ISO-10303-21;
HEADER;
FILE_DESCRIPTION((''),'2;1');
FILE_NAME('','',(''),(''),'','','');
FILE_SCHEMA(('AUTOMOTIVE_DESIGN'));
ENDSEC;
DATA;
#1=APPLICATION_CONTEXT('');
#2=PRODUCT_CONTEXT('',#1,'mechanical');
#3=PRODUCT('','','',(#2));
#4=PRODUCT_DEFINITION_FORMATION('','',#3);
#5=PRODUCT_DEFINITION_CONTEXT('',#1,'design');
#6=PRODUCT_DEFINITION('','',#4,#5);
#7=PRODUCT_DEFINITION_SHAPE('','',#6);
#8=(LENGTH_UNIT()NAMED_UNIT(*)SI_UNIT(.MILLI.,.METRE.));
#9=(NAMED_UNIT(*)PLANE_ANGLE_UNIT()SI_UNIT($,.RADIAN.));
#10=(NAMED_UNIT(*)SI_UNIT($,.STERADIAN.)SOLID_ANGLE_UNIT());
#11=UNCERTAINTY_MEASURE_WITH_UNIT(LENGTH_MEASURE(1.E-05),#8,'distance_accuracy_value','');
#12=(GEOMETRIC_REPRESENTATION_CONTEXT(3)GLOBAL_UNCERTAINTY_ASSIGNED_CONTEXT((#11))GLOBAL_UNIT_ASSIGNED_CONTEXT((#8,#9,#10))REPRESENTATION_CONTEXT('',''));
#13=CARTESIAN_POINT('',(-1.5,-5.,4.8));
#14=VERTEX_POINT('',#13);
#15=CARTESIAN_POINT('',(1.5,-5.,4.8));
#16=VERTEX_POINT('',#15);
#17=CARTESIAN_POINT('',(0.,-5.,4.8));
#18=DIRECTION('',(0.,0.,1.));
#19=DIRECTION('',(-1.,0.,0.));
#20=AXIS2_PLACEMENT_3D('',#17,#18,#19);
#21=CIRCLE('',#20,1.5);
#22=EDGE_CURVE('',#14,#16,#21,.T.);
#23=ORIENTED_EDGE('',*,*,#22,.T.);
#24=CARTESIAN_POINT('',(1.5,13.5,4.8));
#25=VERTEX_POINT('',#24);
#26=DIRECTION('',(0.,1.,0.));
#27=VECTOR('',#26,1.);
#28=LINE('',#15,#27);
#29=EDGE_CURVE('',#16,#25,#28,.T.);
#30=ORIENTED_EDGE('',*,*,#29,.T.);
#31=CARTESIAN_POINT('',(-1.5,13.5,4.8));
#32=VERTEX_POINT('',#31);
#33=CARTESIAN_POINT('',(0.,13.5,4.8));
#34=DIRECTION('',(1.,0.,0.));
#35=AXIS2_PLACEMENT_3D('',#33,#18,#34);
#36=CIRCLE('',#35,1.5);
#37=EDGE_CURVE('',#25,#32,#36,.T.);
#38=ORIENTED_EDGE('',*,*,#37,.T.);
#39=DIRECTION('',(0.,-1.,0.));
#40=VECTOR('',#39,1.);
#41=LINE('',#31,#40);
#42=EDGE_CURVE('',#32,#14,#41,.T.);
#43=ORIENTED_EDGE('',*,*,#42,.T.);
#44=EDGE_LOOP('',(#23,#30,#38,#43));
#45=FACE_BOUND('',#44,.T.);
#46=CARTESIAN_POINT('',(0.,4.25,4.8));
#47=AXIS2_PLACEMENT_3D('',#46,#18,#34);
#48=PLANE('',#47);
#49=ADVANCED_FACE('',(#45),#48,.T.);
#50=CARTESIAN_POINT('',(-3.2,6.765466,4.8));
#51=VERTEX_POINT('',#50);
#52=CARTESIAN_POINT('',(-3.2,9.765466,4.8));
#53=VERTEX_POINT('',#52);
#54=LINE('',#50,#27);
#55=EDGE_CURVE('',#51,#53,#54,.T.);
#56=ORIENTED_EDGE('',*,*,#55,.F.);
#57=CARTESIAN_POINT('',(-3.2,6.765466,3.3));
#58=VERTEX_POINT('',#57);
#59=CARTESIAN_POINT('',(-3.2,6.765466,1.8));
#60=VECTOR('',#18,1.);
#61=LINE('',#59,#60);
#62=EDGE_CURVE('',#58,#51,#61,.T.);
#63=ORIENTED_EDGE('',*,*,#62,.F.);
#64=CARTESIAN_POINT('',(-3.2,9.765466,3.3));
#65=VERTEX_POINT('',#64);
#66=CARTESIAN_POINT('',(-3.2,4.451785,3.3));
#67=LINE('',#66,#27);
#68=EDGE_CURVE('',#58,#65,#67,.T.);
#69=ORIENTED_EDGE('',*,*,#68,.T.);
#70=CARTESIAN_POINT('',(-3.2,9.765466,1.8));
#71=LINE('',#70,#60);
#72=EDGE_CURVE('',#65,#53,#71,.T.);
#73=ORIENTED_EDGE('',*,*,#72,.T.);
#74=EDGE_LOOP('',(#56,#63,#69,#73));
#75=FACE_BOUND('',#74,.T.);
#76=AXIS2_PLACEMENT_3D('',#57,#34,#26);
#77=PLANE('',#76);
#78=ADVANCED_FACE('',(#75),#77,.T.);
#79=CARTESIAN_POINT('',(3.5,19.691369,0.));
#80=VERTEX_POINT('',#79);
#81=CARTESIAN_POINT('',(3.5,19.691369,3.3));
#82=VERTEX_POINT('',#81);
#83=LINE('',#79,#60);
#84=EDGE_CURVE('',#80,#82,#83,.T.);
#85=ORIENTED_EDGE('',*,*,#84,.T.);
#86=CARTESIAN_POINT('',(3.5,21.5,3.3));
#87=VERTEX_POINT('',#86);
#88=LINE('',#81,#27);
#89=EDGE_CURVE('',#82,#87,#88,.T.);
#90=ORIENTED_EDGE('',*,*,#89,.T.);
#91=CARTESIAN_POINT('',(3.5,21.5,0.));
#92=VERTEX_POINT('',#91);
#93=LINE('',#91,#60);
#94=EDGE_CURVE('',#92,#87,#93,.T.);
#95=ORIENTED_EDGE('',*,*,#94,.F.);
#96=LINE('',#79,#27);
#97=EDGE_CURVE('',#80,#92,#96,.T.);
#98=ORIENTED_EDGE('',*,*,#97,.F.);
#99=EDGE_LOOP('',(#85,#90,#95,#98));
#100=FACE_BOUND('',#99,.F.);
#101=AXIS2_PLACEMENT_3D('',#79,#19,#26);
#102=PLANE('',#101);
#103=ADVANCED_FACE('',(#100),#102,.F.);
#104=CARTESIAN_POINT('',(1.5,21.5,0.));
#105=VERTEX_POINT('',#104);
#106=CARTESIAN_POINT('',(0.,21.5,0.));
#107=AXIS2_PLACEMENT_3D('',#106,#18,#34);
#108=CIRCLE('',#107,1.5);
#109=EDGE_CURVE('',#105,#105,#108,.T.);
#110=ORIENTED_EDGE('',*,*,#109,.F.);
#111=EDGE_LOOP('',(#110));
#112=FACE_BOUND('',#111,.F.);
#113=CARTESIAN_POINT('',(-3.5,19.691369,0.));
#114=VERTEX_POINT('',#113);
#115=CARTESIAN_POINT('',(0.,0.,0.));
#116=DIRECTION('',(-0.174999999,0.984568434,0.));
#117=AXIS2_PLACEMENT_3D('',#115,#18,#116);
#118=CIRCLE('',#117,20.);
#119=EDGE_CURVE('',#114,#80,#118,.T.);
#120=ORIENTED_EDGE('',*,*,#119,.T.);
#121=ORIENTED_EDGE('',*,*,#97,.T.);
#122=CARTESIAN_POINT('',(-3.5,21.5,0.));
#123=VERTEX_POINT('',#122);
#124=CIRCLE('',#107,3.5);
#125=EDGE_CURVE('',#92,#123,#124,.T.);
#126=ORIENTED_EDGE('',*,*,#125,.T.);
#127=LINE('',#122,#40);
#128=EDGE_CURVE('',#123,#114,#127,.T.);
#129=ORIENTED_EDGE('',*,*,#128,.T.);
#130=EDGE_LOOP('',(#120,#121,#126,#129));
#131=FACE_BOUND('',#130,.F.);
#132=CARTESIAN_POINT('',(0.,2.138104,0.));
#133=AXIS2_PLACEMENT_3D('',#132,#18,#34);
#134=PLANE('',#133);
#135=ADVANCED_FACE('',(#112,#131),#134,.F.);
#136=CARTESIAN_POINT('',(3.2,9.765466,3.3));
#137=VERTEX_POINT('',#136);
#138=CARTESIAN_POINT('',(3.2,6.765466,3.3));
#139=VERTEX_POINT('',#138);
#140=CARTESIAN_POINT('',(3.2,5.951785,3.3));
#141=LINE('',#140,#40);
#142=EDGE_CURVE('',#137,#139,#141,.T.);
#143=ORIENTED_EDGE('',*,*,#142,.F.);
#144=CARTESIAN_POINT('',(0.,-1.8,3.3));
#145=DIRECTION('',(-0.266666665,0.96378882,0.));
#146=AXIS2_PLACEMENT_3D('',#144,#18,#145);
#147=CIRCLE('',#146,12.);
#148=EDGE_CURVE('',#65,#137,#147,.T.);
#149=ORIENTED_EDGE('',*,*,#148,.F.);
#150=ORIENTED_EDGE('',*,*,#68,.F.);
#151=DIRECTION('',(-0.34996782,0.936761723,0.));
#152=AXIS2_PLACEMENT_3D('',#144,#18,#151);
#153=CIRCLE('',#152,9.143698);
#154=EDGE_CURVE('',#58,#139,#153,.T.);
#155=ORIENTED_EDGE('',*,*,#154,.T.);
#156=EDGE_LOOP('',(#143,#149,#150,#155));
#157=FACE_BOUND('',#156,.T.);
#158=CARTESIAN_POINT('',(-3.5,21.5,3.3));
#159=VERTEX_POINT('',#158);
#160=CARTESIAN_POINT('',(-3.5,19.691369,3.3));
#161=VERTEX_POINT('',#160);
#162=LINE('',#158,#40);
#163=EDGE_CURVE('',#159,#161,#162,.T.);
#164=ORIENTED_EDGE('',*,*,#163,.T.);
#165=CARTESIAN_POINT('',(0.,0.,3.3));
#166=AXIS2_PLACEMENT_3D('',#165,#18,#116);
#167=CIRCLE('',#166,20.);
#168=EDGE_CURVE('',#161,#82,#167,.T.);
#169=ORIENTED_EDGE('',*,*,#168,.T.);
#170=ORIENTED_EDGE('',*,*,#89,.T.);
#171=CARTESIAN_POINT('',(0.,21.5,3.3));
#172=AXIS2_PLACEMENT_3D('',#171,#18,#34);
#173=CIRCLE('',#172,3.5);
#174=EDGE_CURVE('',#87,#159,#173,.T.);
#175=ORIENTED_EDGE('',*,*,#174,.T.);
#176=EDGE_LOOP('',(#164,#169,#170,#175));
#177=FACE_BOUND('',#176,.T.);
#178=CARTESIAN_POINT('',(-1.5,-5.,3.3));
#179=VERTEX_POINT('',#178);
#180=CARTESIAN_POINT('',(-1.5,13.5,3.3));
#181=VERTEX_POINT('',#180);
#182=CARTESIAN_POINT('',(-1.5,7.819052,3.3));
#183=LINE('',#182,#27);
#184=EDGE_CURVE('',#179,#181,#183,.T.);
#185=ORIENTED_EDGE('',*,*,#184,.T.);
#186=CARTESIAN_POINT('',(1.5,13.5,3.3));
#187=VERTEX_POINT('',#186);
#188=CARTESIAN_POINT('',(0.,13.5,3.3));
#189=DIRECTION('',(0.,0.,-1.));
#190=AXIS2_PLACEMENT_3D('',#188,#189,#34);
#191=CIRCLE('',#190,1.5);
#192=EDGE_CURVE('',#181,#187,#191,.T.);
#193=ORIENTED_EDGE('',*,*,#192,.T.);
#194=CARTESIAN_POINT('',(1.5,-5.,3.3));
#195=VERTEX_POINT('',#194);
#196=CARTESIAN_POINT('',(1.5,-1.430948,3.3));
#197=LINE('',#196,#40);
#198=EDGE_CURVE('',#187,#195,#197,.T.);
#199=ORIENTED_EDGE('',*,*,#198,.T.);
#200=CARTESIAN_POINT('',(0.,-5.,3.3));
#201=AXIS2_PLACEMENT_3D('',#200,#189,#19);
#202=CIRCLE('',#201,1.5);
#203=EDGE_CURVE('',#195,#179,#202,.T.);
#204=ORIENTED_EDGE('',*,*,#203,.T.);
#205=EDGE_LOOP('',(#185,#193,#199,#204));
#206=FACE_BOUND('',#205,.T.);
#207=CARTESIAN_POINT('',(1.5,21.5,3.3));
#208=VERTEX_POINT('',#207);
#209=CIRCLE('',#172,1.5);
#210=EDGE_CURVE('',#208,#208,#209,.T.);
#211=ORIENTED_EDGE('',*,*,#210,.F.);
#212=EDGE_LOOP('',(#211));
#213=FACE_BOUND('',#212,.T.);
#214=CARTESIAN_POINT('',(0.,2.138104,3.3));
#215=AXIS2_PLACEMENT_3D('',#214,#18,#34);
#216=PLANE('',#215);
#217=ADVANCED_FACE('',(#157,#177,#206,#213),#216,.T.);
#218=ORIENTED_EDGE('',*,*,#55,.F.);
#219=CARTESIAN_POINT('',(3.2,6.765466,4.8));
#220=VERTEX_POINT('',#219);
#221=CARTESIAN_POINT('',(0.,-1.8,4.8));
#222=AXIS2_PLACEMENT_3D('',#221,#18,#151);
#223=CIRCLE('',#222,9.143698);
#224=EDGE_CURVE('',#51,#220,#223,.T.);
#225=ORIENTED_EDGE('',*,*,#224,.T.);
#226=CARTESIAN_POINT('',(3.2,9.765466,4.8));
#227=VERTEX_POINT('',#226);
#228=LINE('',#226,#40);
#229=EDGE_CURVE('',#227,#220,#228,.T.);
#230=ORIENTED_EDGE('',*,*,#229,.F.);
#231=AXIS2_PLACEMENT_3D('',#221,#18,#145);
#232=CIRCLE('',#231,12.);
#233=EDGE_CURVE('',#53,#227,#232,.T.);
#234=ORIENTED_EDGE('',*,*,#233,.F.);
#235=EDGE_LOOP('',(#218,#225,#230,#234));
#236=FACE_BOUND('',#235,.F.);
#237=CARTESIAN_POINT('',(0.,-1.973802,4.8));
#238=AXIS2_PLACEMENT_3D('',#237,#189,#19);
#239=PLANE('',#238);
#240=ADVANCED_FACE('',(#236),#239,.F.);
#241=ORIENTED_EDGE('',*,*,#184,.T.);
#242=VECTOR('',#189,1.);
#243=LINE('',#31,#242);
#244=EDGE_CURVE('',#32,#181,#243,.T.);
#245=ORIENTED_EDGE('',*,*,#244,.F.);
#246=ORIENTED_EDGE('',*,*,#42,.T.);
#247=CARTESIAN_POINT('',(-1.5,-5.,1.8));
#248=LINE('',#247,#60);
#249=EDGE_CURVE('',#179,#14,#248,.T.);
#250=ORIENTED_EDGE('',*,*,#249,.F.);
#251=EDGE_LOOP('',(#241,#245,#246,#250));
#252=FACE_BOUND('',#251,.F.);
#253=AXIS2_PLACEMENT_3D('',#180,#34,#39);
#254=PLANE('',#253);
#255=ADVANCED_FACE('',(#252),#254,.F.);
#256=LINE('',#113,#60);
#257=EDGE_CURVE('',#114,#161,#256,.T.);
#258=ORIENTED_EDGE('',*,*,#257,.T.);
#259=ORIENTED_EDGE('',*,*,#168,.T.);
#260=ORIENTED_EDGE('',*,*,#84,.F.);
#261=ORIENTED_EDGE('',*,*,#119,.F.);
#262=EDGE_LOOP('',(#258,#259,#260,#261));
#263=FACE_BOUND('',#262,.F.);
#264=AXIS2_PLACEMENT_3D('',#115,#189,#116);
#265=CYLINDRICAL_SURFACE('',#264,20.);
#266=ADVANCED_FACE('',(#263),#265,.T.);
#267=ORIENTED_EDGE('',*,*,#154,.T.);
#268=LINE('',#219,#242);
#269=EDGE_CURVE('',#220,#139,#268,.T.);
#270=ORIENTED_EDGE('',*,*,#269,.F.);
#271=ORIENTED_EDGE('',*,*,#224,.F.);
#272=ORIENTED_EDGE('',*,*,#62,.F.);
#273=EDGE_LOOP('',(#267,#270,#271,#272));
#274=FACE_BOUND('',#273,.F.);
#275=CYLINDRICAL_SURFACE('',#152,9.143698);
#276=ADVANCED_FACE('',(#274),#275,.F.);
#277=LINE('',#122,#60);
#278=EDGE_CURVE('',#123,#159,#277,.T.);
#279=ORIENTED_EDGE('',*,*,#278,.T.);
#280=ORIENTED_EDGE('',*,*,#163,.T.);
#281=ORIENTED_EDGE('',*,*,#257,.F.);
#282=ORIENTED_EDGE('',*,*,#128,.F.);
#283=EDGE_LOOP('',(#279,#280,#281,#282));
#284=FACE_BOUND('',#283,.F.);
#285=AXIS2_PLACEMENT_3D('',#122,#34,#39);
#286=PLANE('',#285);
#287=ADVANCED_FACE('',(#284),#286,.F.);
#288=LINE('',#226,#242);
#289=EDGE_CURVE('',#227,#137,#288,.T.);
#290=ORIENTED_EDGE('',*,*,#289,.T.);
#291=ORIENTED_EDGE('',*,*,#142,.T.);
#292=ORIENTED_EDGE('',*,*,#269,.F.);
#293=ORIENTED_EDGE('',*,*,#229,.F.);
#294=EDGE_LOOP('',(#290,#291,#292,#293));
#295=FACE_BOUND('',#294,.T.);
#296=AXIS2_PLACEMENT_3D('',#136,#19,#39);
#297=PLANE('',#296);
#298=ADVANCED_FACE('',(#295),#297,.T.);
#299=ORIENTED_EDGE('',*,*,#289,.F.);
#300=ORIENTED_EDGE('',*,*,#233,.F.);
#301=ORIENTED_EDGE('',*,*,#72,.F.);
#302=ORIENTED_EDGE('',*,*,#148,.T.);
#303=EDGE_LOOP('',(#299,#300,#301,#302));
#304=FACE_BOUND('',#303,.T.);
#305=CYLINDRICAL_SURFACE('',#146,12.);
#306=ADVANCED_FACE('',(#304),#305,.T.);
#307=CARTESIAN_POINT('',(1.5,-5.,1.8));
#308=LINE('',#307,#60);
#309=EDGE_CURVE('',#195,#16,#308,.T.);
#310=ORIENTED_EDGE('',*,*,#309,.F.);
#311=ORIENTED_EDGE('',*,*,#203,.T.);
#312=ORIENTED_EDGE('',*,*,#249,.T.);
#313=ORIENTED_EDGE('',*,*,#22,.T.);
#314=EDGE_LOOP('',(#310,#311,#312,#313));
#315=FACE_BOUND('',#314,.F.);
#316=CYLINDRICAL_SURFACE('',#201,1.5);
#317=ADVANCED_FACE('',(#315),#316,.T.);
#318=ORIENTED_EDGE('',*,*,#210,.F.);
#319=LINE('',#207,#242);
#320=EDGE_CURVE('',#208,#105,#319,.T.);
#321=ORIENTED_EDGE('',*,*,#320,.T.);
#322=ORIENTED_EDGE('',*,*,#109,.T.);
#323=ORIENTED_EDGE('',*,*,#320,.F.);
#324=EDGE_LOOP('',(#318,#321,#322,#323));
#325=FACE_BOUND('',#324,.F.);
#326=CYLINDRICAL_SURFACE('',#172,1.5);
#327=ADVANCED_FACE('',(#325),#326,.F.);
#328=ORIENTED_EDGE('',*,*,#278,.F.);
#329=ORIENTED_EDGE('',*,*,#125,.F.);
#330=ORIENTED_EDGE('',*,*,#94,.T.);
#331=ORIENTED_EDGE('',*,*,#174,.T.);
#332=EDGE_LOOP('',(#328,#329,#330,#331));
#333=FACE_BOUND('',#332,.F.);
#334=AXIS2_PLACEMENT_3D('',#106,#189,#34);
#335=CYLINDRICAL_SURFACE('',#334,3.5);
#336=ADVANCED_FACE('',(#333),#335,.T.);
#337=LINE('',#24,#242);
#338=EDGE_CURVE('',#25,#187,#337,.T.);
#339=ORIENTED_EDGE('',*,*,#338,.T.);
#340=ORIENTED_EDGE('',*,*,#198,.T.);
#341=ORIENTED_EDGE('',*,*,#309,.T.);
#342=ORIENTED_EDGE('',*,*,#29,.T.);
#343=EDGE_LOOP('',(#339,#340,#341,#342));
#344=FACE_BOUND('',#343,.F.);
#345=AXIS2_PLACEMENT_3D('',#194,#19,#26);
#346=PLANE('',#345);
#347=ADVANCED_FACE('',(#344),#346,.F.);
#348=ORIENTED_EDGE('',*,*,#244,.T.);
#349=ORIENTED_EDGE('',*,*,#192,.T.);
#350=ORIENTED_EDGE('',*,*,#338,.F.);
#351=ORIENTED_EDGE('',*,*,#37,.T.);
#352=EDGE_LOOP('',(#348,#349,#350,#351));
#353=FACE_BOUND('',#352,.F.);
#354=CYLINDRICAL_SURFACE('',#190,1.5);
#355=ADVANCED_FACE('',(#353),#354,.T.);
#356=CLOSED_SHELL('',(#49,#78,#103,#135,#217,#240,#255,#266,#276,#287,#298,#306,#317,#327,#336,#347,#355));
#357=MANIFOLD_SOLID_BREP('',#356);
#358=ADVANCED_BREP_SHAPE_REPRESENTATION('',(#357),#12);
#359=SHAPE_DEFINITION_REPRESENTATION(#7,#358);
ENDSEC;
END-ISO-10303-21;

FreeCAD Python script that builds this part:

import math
import FreeCAD as App
import Part
import Sketcher
Q = App.Units.Quantity

doc = App.newDocument("Part")
body = doc.addObject("PartDesign::Body", "Body")

sketch1 = doc.addObject("Sketcher::SketchObject", "Sketch")
body.addObject(sketch1)
sketch1.AttachmentSupport = (doc.XY_Plane, [""])
sketch1.MapMode = "FlatFace"
sketch1.addGeometry([
    Part.ArcOfCircle(Part.Circle(App.Vector(0, 21.5, 0), App.Vector(0, 0, 1), 3.5), math.radians(0), math.radians(180)),
    Part.LineSegment(App.Vector(-3.5, 21.5, 0), App.Vector(-3.5, 19.7, 0)),
    Part.ArcOfCircle(Part.Circle(App.Vector(0, 0, 0), App.Vector(0, 0, 1), 20), math.radians(100), math.radians(440)),
    Part.LineSegment(App.Vector(3.5, 19.7, 0), App.Vector(3.5, 21.5, 0)),
], False)
sketch1.addConstraint([
    Sketcher.Constraint("Tangent", 0, 2, 1, 1),
    Sketcher.Constraint("Coincident", 1, 2, 2, 1),
    Sketcher.Constraint("Coincident", 2, 2, 3, 1),
    Sketcher.Constraint("Tangent", 3, 2, 0, 1),
    Sketcher.Constraint("Vertical", 1),
    Sketcher.Constraint("Vertical", 3),
    Sketcher.Constraint("Coincident", 2, 3, -1, 1),
    Sketcher.Constraint("PointOnObject", 0, 3, -2),
    Sketcher.Constraint("Radius", 2, Q("20 mm")),
    Sketcher.Constraint("Radius", 0, Q("3.5 mm")),
    Sketcher.Constraint("DistanceY", -1, 1, 0, 3, Q("21.5 mm")),
])
pad1 = doc.addObject("PartDesign::Pad", "Pad")
body.addObject(pad1)
pad1.Profile = sketch1
pad1.Length = 3.3

sketch2 = doc.addObject("Sketcher::SketchObject", "Sketch001")
body.addObject(sketch2)
sketch2.AttachmentSupport = (doc.XY_Plane, [""])
sketch2.MapMode = "FlatFace"
sketch2.AttachmentOffset = App.Placement(App.Vector(0, 0, 3.3), App.Rotation())
sketch2.addGeometry(Part.Circle(App.Vector(0, 21.5, 0), App.Vector(0, 0, 1), 1.5), False)
sketch2.addConstraint([
    Sketcher.Constraint("PointOnObject", 0, 3, -2),
    Sketcher.Constraint("Diameter", 0, Q("3 mm")),
    Sketcher.Constraint("DistanceY", -1, 1, 0, 3, Q("21.5 mm")),
])
pocket1 = doc.addObject("PartDesign::Pocket", "Pocket")
body.addObject(pocket1)
pocket1.Profile = sketch2
pocket1.Type = "ThroughAll"

sketch3 = doc.addObject("Sketcher::SketchObject", "Sketch002")
body.addObject(sketch3)
sketch3.AttachmentSupport = (doc.XY_Plane, [""])
sketch3.MapMode = "FlatFace"
sketch3.AttachmentOffset = App.Placement(App.Vector(0, 0, 3.3), App.Rotation())
sketch3.addGeometry([
    Part.LineSegment(App.Vector(-1.5, 13.5, 0), App.Vector(-1.5, -5, 0)),
    Part.ArcOfCircle(Part.Circle(App.Vector(0, -5, 0), App.Vector(0, 0, 1), 1.5), math.radians(180), math.radians(360)),
    Part.LineSegment(App.Vector(1.5, -5, 0), App.Vector(1.5, 13.5, 0)),
    Part.ArcOfCircle(Part.Circle(App.Vector(0, 13.5, 0), App.Vector(0, 0, 1), 1.5), math.radians(0), math.radians(180)),
    Part.ArcOfCircle(Part.Circle(App.Vector(0, -1.8, 0), App.Vector(0, 0, 1), 9.1), math.radians(110), math.radians(430)),
    Part.LineSegment(App.Vector(-3.2, 6.8, 0), App.Vector(-3.2, 9.8, 0)),
    Part.ArcOfCircle(Part.Circle(App.Vector(0, -1.8, 0), App.Vector(0, 0, 1), 12), math.radians(105), math.radians(435)),
    Part.LineSegment(App.Vector(3.2, 9.8, 0), App.Vector(3.2, 6.8, 0)),
], False)
sketch3.addConstraint([
    Sketcher.Constraint("Tangent", 0, 2, 1, 1),
    Sketcher.Constraint("Tangent", 1, 2, 2, 1),
    Sketcher.Constraint("Tangent", 2, 2, 3, 1),
    Sketcher.Constraint("Tangent", 3, 2, 0, 1),
    Sketcher.Constraint("Coincident", 4, 1, 5, 1),
    Sketcher.Constraint("Coincident", 5, 2, 6, 1),
    Sketcher.Constraint("Coincident", 6, 2, 7, 1),
    Sketcher.Constraint("Coincident", 7, 2, 4, 2),
    Sketcher.Constraint("Vertical", 0),
    Sketcher.Constraint("Vertical", 2),
    Sketcher.Constraint("Vertical", 5),
    Sketcher.Constraint("Vertical", 7),
    Sketcher.Constraint("Coincident", 6, 3, 4, 3),
    Sketcher.Constraint("Symmetric", 5, 2, 6, 2, -2),
    Sketcher.Constraint("PointOnObject", 1, 3, -2),
    Sketcher.Constraint("Radius", 6, Q("12 mm")),
    Sketcher.Constraint("Radius", 1, Q("1.5 mm")),
    Sketcher.Constraint("DistanceY", 5, 1, 5, 2, Q("3 mm")),
    Sketcher.Constraint("DistanceY", 0, 2, 0, 1, Q("18.5 mm")),
    Sketcher.Constraint("DistanceY", 1, 3, -1, 1, Q("5 mm")),
    Sketcher.Constraint("DistanceY", 4, 3, -1, 1, Q("1.8 mm")),
    Sketcher.Constraint("DistanceX", 4, 1, -1, 1, Q("3.2 mm")),
])
pad2 = doc.addObject("PartDesign::Pad", "Pad001")
body.addObject(pad2)
pad2.Profile = sketch3
pad2.Length = 3
pad2.Midplane = True

doc.recompute()
